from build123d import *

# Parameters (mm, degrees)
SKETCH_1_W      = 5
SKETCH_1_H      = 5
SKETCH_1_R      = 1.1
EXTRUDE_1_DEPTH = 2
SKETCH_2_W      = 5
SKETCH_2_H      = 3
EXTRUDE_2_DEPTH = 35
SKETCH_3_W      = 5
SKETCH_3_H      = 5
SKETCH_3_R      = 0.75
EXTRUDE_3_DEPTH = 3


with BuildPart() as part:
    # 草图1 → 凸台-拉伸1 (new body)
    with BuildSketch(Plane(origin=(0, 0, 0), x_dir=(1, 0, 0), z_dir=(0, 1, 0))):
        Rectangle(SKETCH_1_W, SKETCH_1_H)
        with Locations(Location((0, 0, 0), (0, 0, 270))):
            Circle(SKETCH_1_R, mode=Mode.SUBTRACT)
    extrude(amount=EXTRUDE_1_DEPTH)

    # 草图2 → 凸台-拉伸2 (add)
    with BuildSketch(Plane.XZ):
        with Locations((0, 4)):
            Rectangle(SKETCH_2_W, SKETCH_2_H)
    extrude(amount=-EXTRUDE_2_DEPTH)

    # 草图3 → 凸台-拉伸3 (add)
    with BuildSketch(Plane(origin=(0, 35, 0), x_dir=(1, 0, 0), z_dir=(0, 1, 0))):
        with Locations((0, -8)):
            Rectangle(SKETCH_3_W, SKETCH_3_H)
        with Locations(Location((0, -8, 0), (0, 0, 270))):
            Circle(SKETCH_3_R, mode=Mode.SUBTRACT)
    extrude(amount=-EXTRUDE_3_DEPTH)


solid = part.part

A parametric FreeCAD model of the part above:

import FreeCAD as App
import Part
import Sketcher
from FreeCAD import Vector


def add_polygon(sketch, points):
    """Adds a closed chain of lines whose ends are joined by coincident constraints."""
    first, n = sketch.GeometryCount, len(points)
    for a, b in zip(points, points[1:] + points[:1]):
        sketch.addGeometry(Part.LineSegment(App.Vector(*a, 0), App.Vector(*b, 0)), False)
    for i in range(n):
        sketch.addConstraint(Sketcher.Constraint("Coincident", first + i, 2, first + (i + 1) % n, 1))

doc = App.newDocument("Part")
body = doc.addObject("PartDesign::Body", "Body")

# Sketch on XZ plane
sketch1 = body.newObject("Sketcher::SketchObject", "Sketch")
sketch1.AttachmentSupport = (doc.getObject("XZ_Plane"), [""])
sketch1.MapMode = "FlatFace"
add_polygon(sketch1, [(-2.5, -2.5), (-2.5, 2.5), (2.5, 2.5), (2.5, -2.5)])  # lines 0-3
sketch1.addGeometry(Part.Circle(Vector(0, 0, 0), Vector(0, 0, 1), 1.1), False)  # 4
sketch1.addConstraint(Sketcher.Constraint("Vertical", 0))
sketch1.addConstraint(Sketcher.Constraint("Horizontal", 1))
sketch1.addConstraint(Sketcher.Constraint("Vertical", 2))
sketch1.addConstraint(Sketcher.Constraint("Horizontal", 3))
sketch1.addConstraint(Sketcher.Constraint("Coincident", 4, 3, -1, 1))
sketch1.addConstraint(Sketcher.Constraint("Symmetric", 0, 2, 2, 2, -1, 1))
sketch1.addConstraint(Sketcher.Constraint("Equal", 3, 0))
sketch1.addConstraint(Sketcher.Constraint("Diameter", 4, 2.2))
sketch1.addConstraint(Sketcher.Constraint("DistanceX", 1, 1, 1, 2, 5.0))
pad1 = body.newObject("PartDesign::Pad", "Pad")
pad1.Profile = sketch1
pad1.Length = 2
pad1.Reversed = True

# Sketch on XZ plane
sketch2 = body.newObject("Sketcher::SketchObject", "Sketch001")
sketch2.AttachmentSupport = (doc.getObject("XZ_Plane"), [""])
sketch2.MapMode = "FlatFace"
add_polygon(sketch2, [(-2.5, 5.5), (-2.5, 2.5), (2.5, 2.5), (2.5, 5.5)])  # lines 0-3
sketch2.addConstraint(Sketcher.Constraint("Vertical", 0))
sketch2.addConstraint(Sketcher.Constraint("Horizontal", 1))
sketch2.addConstraint(Sketcher.Constraint("Vertical", 2))
sketch2.addConstraint(Sketcher.Constraint("Horizontal", 3))
sketch2.addConstraint(Sketcher.Constraint("DistanceX", 1, 1, 1, 2, 5.0))
sketch2.addConstraint(Sketcher.Constraint("DistanceY", 0, 2, 0, 1, 3.0))
sketch2.addConstraint(Sketcher.Constraint("DistanceX", 0, 2, -1, 1, 2.5))
sketch2.addConstraint(Sketcher.Constraint("DistanceY", -1, 1, 0, 2, 2.5))
pad2 = body.newObject("PartDesign::Pad", "Pad001")
pad2.Profile = sketch2
pad2.Length = 35
pad2.Reversed = True

# Sketch on XZ plane
sketch3 = body.newObject("Sketcher::SketchObject", "Sketch002")
sketch3.AttachmentSupport = (doc.getObject("XZ_Plane"), [""])
sketch3.MapMode = "FlatFace"
sketch3.AttachmentOffset = App.Placement(Vector(0, 0, -35), App.Rotation())
add_polygon(sketch3, [(-2.5, 5.5), (-2.5, 10.5), (2.5, 10.5), (2.5, 5.5)])  # lines 0-3
sketch3.addGeometry(Part.Circle(Vector(0, 8, 0), Vector(0, 0, 1), 0.8), False)  # 4
sketch3.addConstraint(Sketcher.Constraint("Vertical", 0))
sketch3.addConstraint(Sketcher.Constraint("Horizontal", 1))
sketch3.addConstraint(Sketcher.Constraint("Vertical", 2))
sketch3.addConstraint(Sketcher.Constraint("Horizontal", 3))
sketch3.addConstraint(Sketcher.Constraint("PointOnObject", 4, 3, -2))
sketch3.addConstraint(Sketcher.Constraint("Equal", 3, 0))
sketch3.addConstraint(Sketcher.Constraint("Diameter", 4, 1.5))
sketch3.addConstraint(Sketcher.Constraint("DistanceX", 1, 1, 1, 2, 5.0))
sketch3.addConstraint(Sketcher.Constraint("DistanceY", -1, 1, 4, 3, 8.0))
sketch3.addConstraint(Sketcher.Constraint("DistanceX", 0, 2, -1, 1, 2.5))
sketch3.addConstraint(Sketcher.Constraint("DistanceY", -1, 1, 0, 2, 10.5))
pad3 = body.newObject("PartDesign::Pad", "Pad002")
pad3.Profile = sketch3
pad3.Length = 3

doc.recompute()
